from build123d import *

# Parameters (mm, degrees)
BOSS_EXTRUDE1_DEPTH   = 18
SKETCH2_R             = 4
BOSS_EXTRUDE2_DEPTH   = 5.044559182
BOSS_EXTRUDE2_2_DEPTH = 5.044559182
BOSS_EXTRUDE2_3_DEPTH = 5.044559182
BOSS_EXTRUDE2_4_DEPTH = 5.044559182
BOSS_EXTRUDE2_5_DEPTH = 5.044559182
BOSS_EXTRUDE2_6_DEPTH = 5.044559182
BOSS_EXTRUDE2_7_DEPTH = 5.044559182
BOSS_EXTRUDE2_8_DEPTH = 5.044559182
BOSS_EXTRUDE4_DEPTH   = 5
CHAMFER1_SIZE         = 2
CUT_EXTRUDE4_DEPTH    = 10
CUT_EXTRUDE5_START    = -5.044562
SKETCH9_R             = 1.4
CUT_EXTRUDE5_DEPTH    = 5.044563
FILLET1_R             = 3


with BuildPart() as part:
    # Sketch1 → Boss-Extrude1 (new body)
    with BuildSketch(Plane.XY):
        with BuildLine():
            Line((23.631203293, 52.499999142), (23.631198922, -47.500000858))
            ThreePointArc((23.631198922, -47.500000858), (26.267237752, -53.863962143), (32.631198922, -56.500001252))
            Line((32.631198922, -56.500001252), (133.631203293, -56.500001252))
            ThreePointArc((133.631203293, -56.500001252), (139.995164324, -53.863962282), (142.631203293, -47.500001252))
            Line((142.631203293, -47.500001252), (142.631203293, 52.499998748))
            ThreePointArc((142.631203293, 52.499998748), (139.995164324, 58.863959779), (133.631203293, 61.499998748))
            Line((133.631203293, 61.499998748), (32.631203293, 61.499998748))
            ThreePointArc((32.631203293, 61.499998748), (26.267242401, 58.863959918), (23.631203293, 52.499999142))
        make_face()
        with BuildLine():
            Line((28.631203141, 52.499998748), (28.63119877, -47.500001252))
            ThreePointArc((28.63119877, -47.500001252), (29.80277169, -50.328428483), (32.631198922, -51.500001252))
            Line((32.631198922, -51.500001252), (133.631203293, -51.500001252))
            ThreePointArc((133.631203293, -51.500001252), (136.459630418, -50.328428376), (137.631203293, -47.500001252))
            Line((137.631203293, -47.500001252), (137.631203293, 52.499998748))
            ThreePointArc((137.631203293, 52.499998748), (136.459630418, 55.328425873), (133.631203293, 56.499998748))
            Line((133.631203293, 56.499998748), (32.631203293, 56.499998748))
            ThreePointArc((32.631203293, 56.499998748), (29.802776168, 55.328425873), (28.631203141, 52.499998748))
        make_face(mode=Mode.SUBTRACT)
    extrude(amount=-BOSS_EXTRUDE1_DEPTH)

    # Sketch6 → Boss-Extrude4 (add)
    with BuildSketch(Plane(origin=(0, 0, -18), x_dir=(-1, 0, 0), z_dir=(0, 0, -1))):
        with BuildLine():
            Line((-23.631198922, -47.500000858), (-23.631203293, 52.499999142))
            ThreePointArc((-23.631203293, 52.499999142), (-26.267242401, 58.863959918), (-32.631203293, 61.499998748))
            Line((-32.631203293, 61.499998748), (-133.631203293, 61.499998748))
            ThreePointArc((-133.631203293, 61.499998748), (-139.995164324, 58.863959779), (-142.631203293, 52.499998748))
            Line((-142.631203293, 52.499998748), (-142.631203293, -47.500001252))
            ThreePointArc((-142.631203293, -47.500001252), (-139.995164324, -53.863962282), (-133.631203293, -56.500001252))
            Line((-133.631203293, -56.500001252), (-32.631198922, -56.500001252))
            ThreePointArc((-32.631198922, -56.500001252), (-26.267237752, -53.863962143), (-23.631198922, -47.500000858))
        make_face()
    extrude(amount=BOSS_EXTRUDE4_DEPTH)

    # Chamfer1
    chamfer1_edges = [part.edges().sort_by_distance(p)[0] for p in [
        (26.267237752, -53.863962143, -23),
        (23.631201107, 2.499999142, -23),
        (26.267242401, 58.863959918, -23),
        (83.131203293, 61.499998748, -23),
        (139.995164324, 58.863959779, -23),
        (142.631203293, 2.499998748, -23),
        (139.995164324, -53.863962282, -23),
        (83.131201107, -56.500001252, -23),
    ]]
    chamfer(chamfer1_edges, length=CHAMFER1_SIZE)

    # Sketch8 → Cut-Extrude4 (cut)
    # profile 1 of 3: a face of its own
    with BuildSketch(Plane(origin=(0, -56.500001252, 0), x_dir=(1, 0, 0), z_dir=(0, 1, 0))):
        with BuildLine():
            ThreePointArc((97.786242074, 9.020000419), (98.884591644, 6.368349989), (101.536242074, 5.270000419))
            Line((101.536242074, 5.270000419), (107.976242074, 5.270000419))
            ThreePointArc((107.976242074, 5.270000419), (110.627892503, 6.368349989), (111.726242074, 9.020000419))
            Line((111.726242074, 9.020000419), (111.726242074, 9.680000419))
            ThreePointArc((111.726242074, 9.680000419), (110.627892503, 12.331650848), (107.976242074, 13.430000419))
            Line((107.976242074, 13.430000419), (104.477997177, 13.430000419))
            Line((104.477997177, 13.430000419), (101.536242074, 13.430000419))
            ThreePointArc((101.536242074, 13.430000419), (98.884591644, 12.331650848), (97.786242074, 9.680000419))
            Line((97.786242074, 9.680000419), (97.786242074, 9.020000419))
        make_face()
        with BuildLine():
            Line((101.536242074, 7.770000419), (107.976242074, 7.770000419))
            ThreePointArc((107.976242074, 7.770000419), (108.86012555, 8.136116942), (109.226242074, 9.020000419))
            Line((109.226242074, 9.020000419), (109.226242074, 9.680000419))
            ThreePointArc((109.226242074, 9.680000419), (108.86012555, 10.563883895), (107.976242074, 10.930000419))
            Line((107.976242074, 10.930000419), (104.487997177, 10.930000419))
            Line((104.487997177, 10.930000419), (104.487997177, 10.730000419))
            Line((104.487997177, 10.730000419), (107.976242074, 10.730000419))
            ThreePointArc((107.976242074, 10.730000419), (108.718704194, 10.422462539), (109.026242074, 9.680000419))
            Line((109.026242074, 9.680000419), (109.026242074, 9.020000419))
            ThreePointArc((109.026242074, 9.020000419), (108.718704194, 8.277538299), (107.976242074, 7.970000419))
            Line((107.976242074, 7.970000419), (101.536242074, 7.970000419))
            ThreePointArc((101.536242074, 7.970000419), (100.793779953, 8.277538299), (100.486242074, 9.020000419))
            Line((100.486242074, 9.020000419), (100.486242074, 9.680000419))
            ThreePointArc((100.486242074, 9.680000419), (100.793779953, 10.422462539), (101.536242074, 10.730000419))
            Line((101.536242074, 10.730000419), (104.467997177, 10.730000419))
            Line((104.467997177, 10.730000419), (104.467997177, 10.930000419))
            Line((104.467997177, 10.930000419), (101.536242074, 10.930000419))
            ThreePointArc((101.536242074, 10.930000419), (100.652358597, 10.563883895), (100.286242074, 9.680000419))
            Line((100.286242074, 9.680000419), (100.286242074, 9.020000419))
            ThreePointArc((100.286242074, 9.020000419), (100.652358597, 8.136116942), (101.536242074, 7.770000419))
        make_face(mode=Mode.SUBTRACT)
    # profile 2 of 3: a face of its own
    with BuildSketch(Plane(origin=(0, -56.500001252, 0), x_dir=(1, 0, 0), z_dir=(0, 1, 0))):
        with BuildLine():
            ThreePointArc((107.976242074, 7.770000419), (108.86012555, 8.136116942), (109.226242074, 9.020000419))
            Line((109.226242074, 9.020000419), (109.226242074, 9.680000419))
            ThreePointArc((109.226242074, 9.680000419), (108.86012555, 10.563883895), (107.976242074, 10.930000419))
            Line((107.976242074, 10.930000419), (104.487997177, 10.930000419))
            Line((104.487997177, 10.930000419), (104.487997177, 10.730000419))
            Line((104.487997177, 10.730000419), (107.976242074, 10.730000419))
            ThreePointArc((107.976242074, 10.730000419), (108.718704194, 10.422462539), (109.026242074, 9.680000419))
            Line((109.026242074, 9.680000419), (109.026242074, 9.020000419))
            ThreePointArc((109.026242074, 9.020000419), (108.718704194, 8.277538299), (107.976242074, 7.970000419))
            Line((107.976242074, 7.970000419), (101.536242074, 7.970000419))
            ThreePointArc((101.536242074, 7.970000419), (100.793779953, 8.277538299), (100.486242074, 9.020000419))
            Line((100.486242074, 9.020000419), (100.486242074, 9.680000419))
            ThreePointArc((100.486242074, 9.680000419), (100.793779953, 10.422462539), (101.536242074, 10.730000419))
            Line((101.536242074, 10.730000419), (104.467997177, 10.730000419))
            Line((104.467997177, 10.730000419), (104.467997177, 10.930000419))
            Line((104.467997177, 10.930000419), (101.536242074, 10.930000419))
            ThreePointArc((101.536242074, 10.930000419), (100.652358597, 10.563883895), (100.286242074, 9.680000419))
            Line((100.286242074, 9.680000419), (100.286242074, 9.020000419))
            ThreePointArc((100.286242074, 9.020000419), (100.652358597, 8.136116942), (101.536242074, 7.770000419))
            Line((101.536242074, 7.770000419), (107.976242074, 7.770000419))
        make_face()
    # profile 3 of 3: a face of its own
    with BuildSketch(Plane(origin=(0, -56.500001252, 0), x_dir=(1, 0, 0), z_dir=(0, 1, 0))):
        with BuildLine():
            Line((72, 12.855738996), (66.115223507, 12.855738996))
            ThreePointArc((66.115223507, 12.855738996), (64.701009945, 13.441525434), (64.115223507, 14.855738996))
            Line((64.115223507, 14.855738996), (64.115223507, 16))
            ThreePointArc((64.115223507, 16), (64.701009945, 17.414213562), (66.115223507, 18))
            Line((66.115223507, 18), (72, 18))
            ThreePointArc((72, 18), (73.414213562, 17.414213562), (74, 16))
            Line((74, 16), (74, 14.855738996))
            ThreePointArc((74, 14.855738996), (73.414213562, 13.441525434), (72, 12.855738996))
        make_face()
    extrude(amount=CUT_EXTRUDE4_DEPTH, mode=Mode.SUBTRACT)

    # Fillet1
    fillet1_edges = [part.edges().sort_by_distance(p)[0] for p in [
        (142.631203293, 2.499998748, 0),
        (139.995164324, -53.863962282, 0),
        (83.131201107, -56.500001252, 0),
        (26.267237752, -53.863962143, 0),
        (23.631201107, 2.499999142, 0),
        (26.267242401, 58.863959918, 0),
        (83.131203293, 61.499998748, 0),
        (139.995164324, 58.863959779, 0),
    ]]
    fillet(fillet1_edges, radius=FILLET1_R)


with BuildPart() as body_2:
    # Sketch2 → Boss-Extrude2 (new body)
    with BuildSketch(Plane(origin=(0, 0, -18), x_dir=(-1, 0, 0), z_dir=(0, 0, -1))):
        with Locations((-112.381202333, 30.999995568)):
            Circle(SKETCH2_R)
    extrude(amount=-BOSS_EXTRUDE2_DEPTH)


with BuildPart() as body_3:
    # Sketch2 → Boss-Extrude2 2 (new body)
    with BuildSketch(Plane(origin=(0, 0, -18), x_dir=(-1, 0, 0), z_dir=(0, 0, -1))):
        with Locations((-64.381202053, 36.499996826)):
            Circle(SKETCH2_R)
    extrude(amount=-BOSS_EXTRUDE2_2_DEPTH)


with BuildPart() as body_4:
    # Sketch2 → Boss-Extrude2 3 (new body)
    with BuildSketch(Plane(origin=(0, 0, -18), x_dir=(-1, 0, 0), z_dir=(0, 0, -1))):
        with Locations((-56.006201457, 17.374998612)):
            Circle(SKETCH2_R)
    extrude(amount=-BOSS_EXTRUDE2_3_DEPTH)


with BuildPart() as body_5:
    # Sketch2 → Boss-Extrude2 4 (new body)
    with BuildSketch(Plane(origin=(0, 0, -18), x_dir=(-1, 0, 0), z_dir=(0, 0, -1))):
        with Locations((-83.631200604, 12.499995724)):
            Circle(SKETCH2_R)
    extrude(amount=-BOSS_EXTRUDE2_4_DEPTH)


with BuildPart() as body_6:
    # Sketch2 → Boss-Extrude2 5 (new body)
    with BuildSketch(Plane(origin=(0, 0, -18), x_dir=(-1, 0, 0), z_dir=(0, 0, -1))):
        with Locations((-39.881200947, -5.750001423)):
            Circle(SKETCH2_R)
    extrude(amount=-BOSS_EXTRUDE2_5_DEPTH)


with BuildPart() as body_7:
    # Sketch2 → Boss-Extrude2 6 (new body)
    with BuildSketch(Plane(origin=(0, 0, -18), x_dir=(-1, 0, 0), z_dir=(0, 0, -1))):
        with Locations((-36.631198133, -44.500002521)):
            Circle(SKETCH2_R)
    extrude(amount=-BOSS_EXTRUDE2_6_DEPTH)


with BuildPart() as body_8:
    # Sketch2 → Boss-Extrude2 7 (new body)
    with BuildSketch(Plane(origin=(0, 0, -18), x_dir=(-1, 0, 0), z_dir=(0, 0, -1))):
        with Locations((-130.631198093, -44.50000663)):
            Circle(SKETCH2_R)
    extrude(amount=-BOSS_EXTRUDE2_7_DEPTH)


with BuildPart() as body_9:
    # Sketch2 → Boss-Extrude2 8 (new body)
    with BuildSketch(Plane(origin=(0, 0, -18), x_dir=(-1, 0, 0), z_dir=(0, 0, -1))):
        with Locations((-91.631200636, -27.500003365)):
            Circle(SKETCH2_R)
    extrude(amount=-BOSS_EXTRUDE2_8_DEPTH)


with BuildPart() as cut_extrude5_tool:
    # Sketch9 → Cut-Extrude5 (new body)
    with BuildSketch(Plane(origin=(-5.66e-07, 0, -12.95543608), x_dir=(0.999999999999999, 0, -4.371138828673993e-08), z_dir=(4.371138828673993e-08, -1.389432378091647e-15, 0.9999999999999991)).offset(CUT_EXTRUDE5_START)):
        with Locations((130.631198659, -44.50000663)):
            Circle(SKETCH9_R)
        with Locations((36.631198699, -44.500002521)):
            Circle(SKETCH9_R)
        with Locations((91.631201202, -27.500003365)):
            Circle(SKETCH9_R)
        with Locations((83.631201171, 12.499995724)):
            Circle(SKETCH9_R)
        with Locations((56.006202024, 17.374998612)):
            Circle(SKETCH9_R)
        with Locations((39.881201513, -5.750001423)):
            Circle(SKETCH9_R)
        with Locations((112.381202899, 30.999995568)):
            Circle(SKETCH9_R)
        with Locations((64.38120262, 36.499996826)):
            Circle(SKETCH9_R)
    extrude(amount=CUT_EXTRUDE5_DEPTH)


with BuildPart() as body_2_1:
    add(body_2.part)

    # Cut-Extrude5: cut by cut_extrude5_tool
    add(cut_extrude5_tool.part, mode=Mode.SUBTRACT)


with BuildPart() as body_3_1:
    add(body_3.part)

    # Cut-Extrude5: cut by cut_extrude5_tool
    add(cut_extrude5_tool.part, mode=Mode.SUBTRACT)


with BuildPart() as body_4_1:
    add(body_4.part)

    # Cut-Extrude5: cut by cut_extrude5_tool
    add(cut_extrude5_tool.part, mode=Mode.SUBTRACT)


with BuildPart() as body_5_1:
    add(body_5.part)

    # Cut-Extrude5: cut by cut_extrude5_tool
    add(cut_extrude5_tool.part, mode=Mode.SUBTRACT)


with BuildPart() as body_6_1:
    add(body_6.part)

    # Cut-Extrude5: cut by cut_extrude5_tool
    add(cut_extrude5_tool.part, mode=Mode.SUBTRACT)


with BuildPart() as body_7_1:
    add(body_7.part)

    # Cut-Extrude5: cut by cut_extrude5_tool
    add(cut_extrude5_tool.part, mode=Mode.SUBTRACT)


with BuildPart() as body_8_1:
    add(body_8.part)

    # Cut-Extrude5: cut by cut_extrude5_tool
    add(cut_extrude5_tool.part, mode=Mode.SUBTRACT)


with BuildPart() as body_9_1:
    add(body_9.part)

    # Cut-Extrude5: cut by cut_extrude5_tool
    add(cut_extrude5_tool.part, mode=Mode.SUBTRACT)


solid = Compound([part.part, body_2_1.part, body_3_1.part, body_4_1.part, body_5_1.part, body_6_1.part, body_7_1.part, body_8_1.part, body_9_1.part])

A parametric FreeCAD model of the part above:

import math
import FreeCAD as App
import Part
import Sketcher
from FreeCAD import Vector


def edges_at(feature, points):
    """Names of the edges that pass closest to the given points."""
    edges = feature.Shape.Edges
    near = lambda p: min(range(len(edges)), key=lambda i: edges[i].distToShape(Part.Vertex(*p))[0])
    return sorted({f"Edge{near(p) + 1}" for p in points})

doc = App.newDocument("Part")
body = doc.addObject("PartDesign::Body", "Body")

# Sketch on XY plane
sketch1 = body.newObject("Sketcher::SketchObject", "Sketch")
sketch1.AttachmentSupport = (doc.getObject("XY_Plane"), [""])
sketch1.MapMode = "FlatFace"
sketch1.addGeometry([
    Part.LineSegment(Vector(23.6, 52.5, 0), Vector(23.6, -47.5, 0)),  # 0
    Part.ArcOfCircle(Part.Circle(Vector(32.6, -47.5, 0), Vector(0, 0, 1), 9), math.radians(180), math.radians(270)),  # 1
    Part.LineSegment(Vector(32.6, -56.5, 0), Vector(133.6, -56.5, 0)),  # 2
    Part.ArcOfCircle(Part.Circle(Vector(133.6, -47.5, 0), Vector(0, 0, 1), 9), math.radians(-90), math.radians(0)),  # 3
    Part.LineSegment(Vector(142.6, -47.5, 0), Vector(142.6, 52.5, 0)),  # 4
    Part.ArcOfCircle(Part.Circle(Vector(133.6, 52.5, 0), Vector(0, 0, 1), 9), math.radians(0), math.radians(90)),  # 5
    Part.LineSegment(Vector(133.6, 61.5, 0), Vector(32.6, 61.5, 0)),  # 6
    Part.ArcOfCircle(Part.Circle(Vector(32.6, 52.5, 0), Vector(0, 0, 1), 9), math.radians(90), math.radians(180)),  # 7
    Part.LineSegment(Vector(28.6, -47.5, 0), Vector(28.6, 52.5, 0)),  # 8
    Part.ArcOfCircle(Part.Circle(Vector(32.6, 52.5, 0), Vector(0, 0, 1), 4), math.radians(90), math.radians(180)),  # 9
    Part.LineSegment(Vector(32.6, 56.5, 0), Vector(133.6, 56.5, 0)),  # 10
    Part.ArcOfCircle(Part.Circle(Vector(133.6, 52.5, 0), Vector(0, 0, 1), 4), math.radians(0), math.radians(90)),  # 11
    Part.LineSegment(Vector(137.6, 52.5, 0), Vector(137.6, -47.5, 0)),  # 12
    Part.ArcOfCircle(Part.Circle(Vector(133.6, -47.5, 0), Vector(0, 0, 1), 4), math.radians(-90), math.radians(0)),  # 13
    Part.LineSegment(Vector(133.6, -51.5, 0), Vector(32.6, -51.5, 0)),  # 14
    Part.ArcOfCircle(Part.Circle(Vector(32.6, -47.5, 0), Vector(0, 0, 1), 4), math.radians(180), math.radians(270)),  # 15
], False)
sketch1.addConstraint([
    Sketcher.Constraint("Tangent", 0, 2, 1, 1),
    Sketcher.Constraint("Tangent", 1, 2, 2, 1),
    Sketcher.Constraint("Tangent", 2, 2, 3, 1),
    Sketcher.Constraint("Tangent", 3, 2, 4, 1),
    Sketcher.Constraint("Tangent", 4, 2, 5, 1),
    Sketcher.Constraint("Tangent", 5, 2, 6, 1),
    Sketcher.Constraint("Tangent", 6, 2, 7, 1),
    Sketcher.Constraint("Tangent", 7, 2, 0, 1),
    Sketcher.Constraint("Tangent", 8, 2, 9, 2),
    Sketcher.Constraint("Tangent", 9, 1, 10, 1),
    Sketcher.Constraint("Tangent", 10, 2, 11, 2),
    Sketcher.Constraint("Tangent", 11, 1, 12, 1),
    Sketcher.Constraint("Tangent", 12, 2, 13, 2),
    Sketcher.Constraint("Tangent", 13, 1, 14, 1),
    Sketcher.Constraint("Tangent", 14, 2, 15, 2),
    Sketcher.Constraint("Tangent", 15, 1, 8, 1),
    Sketcher.Constraint("Horizontal", 2),
    Sketcher.Constraint("Vertical", 4),
    Sketcher.Constraint("Horizontal", 6),
    Sketcher.Constraint("Horizontal", 10),
    Sketcher.Constraint("Vertical", 12),
    Sketcher.Constraint("Horizontal", 14),
    Sketcher.Constraint("Coincident", 9, 3, 7, 3),
    Sketcher.Constraint("Coincident", 11, 3, 5, 3),
    Sketcher.Constraint("Coincident", 13, 3, 3, 3),
    Sketcher.Constraint("Coincident", 15, 3, 1, 3),
    Sketcher.Constraint("Equal", 1, 3),
    Sketcher.Constraint("Equal", 3, 5),
    Sketcher.Constraint("Equal", 5, 7),
    Sketcher.Constraint("Symmetric", 1, 2, 9, 1, -1),
    Sketcher.Constraint("Radius", 1, 9.0),
    Sketcher.Constraint("Radius", 9, 4.0),
    Sketcher.Constraint("DistanceX", 6, 2, 6, 1, 101.0),
    Sketcher.Constraint("DistanceY", 4, 1, 4, 2, 100.0),
    Sketcher.Constraint("DistanceX", -1, 1, 1, 3, 32.631199),
])
pad1 = body.newObject("PartDesign::Pad", "Pad")
pad1.Profile = sketch1
pad1.Length = 18
pad1.Reversed = True

# Sketch on XY plane
sketch2 = body.newObject("Sketcher::SketchObject", "Sketch001")
sketch2.AttachmentSupport = (doc.getObject("XY_Plane"), [""])
sketch2.MapMode = "FlatFace"
sketch2.AttachmentOffset = App.Placement(Vector(0, 0, -18), App.Rotation())
sketch2.addGeometry([
    Part.LineSegment(Vector(24, -48, 0), Vector(24, 52, 0)),  # 0
    Part.ArcOfCircle(Part.Circle(Vector(33, 52, 0), Vector(0, 0, 1), 9), math.radians(90), math.radians(180)),  # 1
    Part.LineSegment(Vector(33, 61, 0), Vector(134, 61, 0)),  # 2
    Part.ArcOfCircle(Part.Circle(Vector(134, 52, 0), Vector(0, 0, 1), 9), math.radians(0), math.radians(90)),  # 3
    Part.LineSegment(Vector(143, 52, 0), Vector(143, -48, 0)),  # 4
    Part.ArcOfCircle(Part.Circle(Vector(134, -48, 0), Vector(0, 0, 1), 9), math.radians(-90), math.radians(0)),  # 5
    Part.LineSegment(Vector(134, -57, 0), Vector(33, -57, 0)),  # 6
    Part.ArcOfCircle(Part.Circle(Vector(33, -48, 0), Vector(0, 0, 1), 9), math.radians(180), math.radians(270)),  # 7
], False)
sketch2.addConstraint([
    Sketcher.Constraint("Tangent", 0, 2, 1, 2),
    Sketcher.Constraint("Tangent", 1, 1, 2, 1),
    Sketcher.Constraint("Tangent", 2, 2, 3, 2),
    Sketcher.Constraint("Tangent", 3, 1, 4, 1),
    Sketcher.Constraint("Tangent", 4, 2, 5, 2),
    Sketcher.Constraint("Tangent", 5, 1, 6, 1),
    Sketcher.Constraint("Tangent", 6, 2, 7, 2),
    Sketcher.Constraint("Tangent", 7, 1, 0, 1),
    Sketcher.Constraint("Horizontal", 2),
    Sketcher.Constraint("Vertical", 4),
    Sketcher.Constraint("Horizontal", 6),
    Sketcher.Constraint("Equal", 1, 3),
    Sketcher.Constraint("Equal", 3, 5),
    Sketcher.Constraint("Equal", 5, 7),
    Sketcher.Constraint("Horizontal", 3, 3, 0, 2),
    Sketcher.Constraint("Radius", 1, 9.0),
    Sketcher.Constraint("DistanceX", 2, 1, 2, 2, 101.0),
    Sketcher.Constraint("DistanceY", 4, 2, 4, 1, 100.0),
    Sketcher.Constraint("DistanceY", -1, 1, 1, 3, 52.499999),
    Sketcher.Constraint("DistanceX", -1, 1, 7, 3, 32.631199),
])
pad2 = body.newObject("PartDesign::Pad", "Pad001")
pad2.Profile = sketch2
pad2.Length = 5
pad2.Reversed = True
doc.recompute()

chamfer = body.newObject("PartDesign::Chamfer", "Chamfer")
chamfer.Base = (pad2, edges_at(pad2, [
    (26.267, -53.864, -23),
    (23.631, 2.5, -23),
    (26.267, 58.864, -23),
    (83.131, 61.5, -23),
    (139.995, 58.864, -23),
    (142.631, 2.5, -23),
    (139.995, -53.864, -23),
    (83.131, -56.5, -23),
]))
chamfer.Size = 2

# Sketch on XZ plane
sketch3 = body.newObject("Sketcher::SketchObject", "Sketch002")
sketch3.AttachmentSupport = (doc.getObject("XZ_Plane"), [""])
sketch3.MapMode = "FlatFace"
sketch3.AttachmentOffset = App.Placement(Vector(0, 0, 56.500001), App.Rotation())
sketch3.addGeometry([
    Part.ArcOfCircle(Part.Circle(Vector(101.5, -9, 0), Vector(0, 0, 1), 3.7), math.radians(90), math.radians(180)),  # 0
    Part.LineSegment(Vector(101.5, -5.3, 0), Vector(108, -5.3, 0)),  # 1
    Part.ArcOfCircle(Part.Circle(Vector(108, -9, 0), Vector(0, 0, 1), 3.8), math.radians(0), math.radians(90)),  # 2
    Part.LineSegment(Vector(111.7, -9, 0), Vector(111.7, -9.7, 0)),  # 3
    Part.ArcOfCircle(Part.Circle(Vector(108, -9.7, 0), Vector(0, 0, 1), 3.8), math.radians(-90), math.radians(0)),  # 4
    Part.LineSegment(Vector(108, -13.4, 0), Vector(101.5, -13.4, 0)),  # 5
    Part.ArcOfCircle(Part.Circle(Vector(101.5, -9.7, 0), Vector(0, 0, 1), 3.8), math.radians(180), math.radians(270)),  # 6
    Part.LineSegment(Vector(97.8, -9.7, 0), Vector(97.8, -9, 0)),  # 7
    Part.LineSegment(Vector(66.1, -12.9, 0), Vector(72, -12.9, 0)),  # 8
    Part.ArcOfCircle(Part.Circle(Vector(72, -14.9, 0), Vector(0, 0, 1), 2), math.radians(0), math.radians(90)),  # 9
    Part.LineSegment(Vector(74, -14.9, 0), Vector(74, -16, 0)),  # 10
    Part.ArcOfCircle(Part.Circle(Vector(72, -16, 0), Vector(0, 0, 1), 2), math.radians(-90), math.radians(0)),  # 11
    Part.LineSegment(Vector(72, -18, 0), Vector(66.1, -18, 0)),  # 12
    Part.ArcOfCircle(Part.Circle(Vector(66.1, -16, 0), Vector(0, 0, 1), 2), math.radians(-180), math.radians(-90)),  # 13
    Part.LineSegment(Vector(64.1, -16, 0), Vector(64.1, -14.9, 0)),  # 14
    Part.ArcOfCircle(Part.Circle(Vector(66.1, -14.9, 0), Vector(0, 0, 1), 2), math.radians(90), math.radians(180)),  # 15
], False)
sketch3.addConstraint([
    Sketcher.Constraint("Tangent", 0, 1, 1, 1),
    Sketcher.Constraint("Tangent", 1, 2, 2, 2),
    Sketcher.Constraint("Tangent", 2, 1, 3, 1),
    Sketcher.Constraint("Tangent", 3, 2, 4, 2),
    Sketcher.Constraint("Tangent", 4, 1, 5, 1),
    Sketcher.Constraint("Tangent", 5, 2, 6, 2),
    Sketcher.Constraint("Tangent", 6, 1, 7, 1),
    Sketcher.Constraint("Tangent", 7, 2, 0, 2),
    Sketcher.Constraint("Tangent", 8, 2, 9, 2),
    Sketcher.Constraint("Tangent", 9, 1, 10, 1),
    Sketcher.Constraint("Tangent", 10, 2, 11, 2),
    Sketcher.Constraint("Tangent", 11, 1, 12, 1),
    Sketcher.Constraint("Tangent", 12, 2, 13, 2),
    Sketcher.Constraint("Tangent", 13, 1, 14, 1),
    Sketcher.Constraint("Tangent", 14, 2, 15, 2),
    Sketcher.Constraint("Tangent", 15, 1, 8, 1),
    Sketcher.Constraint("Horizontal", 1),
    Sketcher.Constraint("Vertical", 3),
    Sketcher.Constraint("Horizontal", 5),
    Sketcher.Constraint("Vertical", 7),
    Sketcher.Constraint("Horizontal", 8),
    Sketcher.Constraint("Vertical", 10),
    Sketcher.Constraint("Horizontal", 12),
    Sketcher.Constraint("Vertical", 14),
    Sketcher.Constraint("Equal", 0, 2),
    Sketcher.Constraint("Equal", 2, 4),
    Sketcher.Constraint("Equal", 4, 6),
    Sketcher.Constraint("Equal", 9, 11),
    Sketcher.Constraint("Equal", 11, 13),
    Sketcher.Constraint("Equal", 13, 15),
    Sketcher.Constraint("Radius", 9, 2.0),
    Sketcher.Constraint("Radius", 0, 3.75),
    Sketcher.Constraint("DistanceX", -1, 1, 9, 3, 72.0),
    Sketcher.Constraint("DistanceY", 11, 3, -1, 1, 16.0),
    Sketcher.Constraint("DistanceX", 1, 1, 1, 2, 6.44),
    Sketcher.Constraint("DistanceY", 3, 2, 3, 1, 0.66),
    Sketcher.Constraint("DistanceY", 0, 3, -1, 1, 9.02),
    Sketcher.Constraint("DistanceY", 10, 2, 10, 1, 1.144261),
    Sketcher.Constraint("DistanceX", 8, 1, 8, 2, 5.884776),
    Sketcher.Constraint("DistanceX", 13, 3, 6, 3, 35.421019),
])
pocket1 = body.newObject("PartDesign::Pocket", "Pocket")
pocket1.Profile = sketch3
pocket1.Length = 10
doc.recompute()

fillet = body.newObject("PartDesign::Fillet", "Fillet")
fillet.Base = (pocket1, edges_at(pocket1, [
    (142.631, 2.5, 0),
    (139.995, -53.864, 0),
    (83.131, -56.5, 0),
    (26.267, -53.864, 0),
    (23.631, 2.5, 0),
    (26.267, 58.864, 0),
    (83.131, 61.5, 0),
    (139.995, 58.864, 0),
]))
fillet.Radius = 3
body2 = doc.addObject("PartDesign::Body", "Body001")

# Sketch on XY plane
sketch4 = body2.newObject("Sketcher::SketchObject", "Sketch003")
sketch4.AttachmentSupport = (doc.getObject("XY_Plane001"), [""])
sketch4.MapMode = "FlatFace"
sketch4.AttachmentOffset = App.Placement(Vector(0, 0, -18), App.Rotation())
sketch4.addGeometry(Part.Circle(Vector(112.4, 31, 0), Vector(0, 0, 1), 4), False)
sketch4.addConstraint([
    Sketcher.Constraint("Diameter", 0, 8.0),
    Sketcher.Constraint("DistanceX", -1, 1, 0, 3, 112.381202),
    Sketcher.Constraint("DistanceY", -1, 1, 0, 3, 30.999996),
])
pad3 = body2.newObject("PartDesign::Pad", "Pad002")
pad3.Profile = sketch4
pad3.Length = 5.044559
body3 = doc.addObject("PartDesign::Body", "Body002")

# Sketch on XY plane
sketch5 = body3.newObject("Sketcher::SketchObject", "Sketch004")
sketch5.AttachmentSupport = (doc.getObject("XY_Plane002"), [""])
sketch5.MapMode = "FlatFace"
sketch5.AttachmentOffset = App.Placement(Vector(0, 0, -18), App.Rotation())
sketch5.addGeometry(Part.Circle(Vector(64.4, 36.5, 0), Vector(0, 0, 1), 4), False)
sketch5.addConstraint([
    Sketcher.Constraint("Diameter", 0, 8.0),
    Sketcher.Constraint("DistanceX", -1, 1, 0, 3, 64.381202),
    Sketcher.Constraint("DistanceY", -1, 1, 0, 3, 36.499997),
])
pad4 = body3.newObject("PartDesign::Pad", "Pad003")
pad4.Profile = sketch5
pad4.Length = 5.044559
body4 = doc.addObject("PartDesign::Body", "Body003")

# Sketch on XY plane
sketch6 = body4.newObject("Sketcher::SketchObject", "Sketch005")
sketch6.AttachmentSupport = (doc.getObject("XY_Plane003"), [""])
sketch6.MapMode = "FlatFace"
sketch6.AttachmentOffset = App.Placement(Vector(0, 0, -18), App.Rotation())
sketch6.addGeometry(Part.Circle(Vector(56, 17.4, 0), Vector(0, 0, 1), 4), False)
sketch6.addConstraint([
    Sketcher.Constraint("Diameter", 0, 8.0),
    Sketcher.Constraint("DistanceY", -1, 1, 0, 3, 17.374999),
    Sketcher.Constraint("DistanceX", -1, 1, 0, 3, 56.006201),
])
pad5 = body4.newObject("PartDesign::Pad", "Pad004")
pad5.Profile = sketch6
pad5.Length = 5.044559
body5 = doc.addObject("PartDesign::Body", "Body004")

# Sketch on XY plane
sketch7 = body5.newObject("Sketcher::SketchObject", "Sketch006")
sketch7.AttachmentSupport = (doc.getObject("XY_Plane004"), [""])
sketch7.MapMode = "FlatFace"
sketch7.AttachmentOffset = App.Placement(Vector(0, 0, -18), App.Rotation())
sketch7.addGeometry(Part.Circle(Vector(83.6, 12.5, 0), Vector(0, 0, 1), 4), False)
sketch7.addConstraint([
    Sketcher.Constraint("Diameter", 0, 8.0),
    Sketcher.Constraint("DistanceX", -1, 1, 0, 3, 83.631201),
    Sketcher.Constraint("DistanceY", -1, 1, 0, 3, 12.499996),
])
pad6 = body5.newObject("PartDesign::Pad", "Pad005")
pad6.Profile = sketch7
pad6.Length = 5.044559
body6 = doc.addObject("PartDesign::Body", "Body005")

# Sketch on XY plane
sketch8 = body6.newObject("Sketcher::SketchObject", "Sketch007")
sketch8.AttachmentSupport = (doc.getObject("XY_Plane005"), [""])
sketch8.MapMode = "FlatFace"
sketch8.AttachmentOffset = App.Placement(Vector(0, 0, -18), App.Rotation())
sketch8.addGeometry(Part.Circle(Vector(39.9, -5.8, 0), Vector(0, 0, 1), 4), False)
sketch8.addConstraint([
    Sketcher.Constraint("Diameter", 0, 8.0),
    Sketcher.Constraint("DistanceY", 0, 3, -1, 1, 5.750001),
    Sketcher.Constraint("DistanceX", -1, 1, 0, 3, 39.881201),
])
pad7 = body6.newObject("PartDesign::Pad", "Pad006")
pad7.Profile = sketch8
pad7.Length = 5.044559
body7 = doc.addObject("PartDesign::Body", "Body006")

# Sketch on XY plane
sketch9 = body7.newObject("Sketcher::SketchObject", "Sketch008")
sketch9.AttachmentSupport = (doc.getObject("XY_Plane006"), [""])
sketch9.MapMode = "FlatFace"
sketch9.AttachmentOffset = App.Placement(Vector(0, 0, -18), App.Rotation())
sketch9.addGeometry(Part.Circle(Vector(36.6, -44.5, 0), Vector(0, 0, 1), 4), False)
sketch9.addConstraint([
    Sketcher.Constraint("Diameter", 0, 8.0),
    Sketcher.Constraint("DistanceX", -1, 1, 0, 3, 36.631198),
    Sketcher.Constraint("DistanceY", 0, 3, -1, 1, 44.500003),
])
pad8 = body7.newObject("PartDesign::Pad", "Pad007")
pad8.Profile = sketch9
pad8.Length = 5.044559
body8 = doc.addObject("PartDesign::Body", "Body007")

# Sketch on XY plane
sketch10 = body8.newObject("Sketcher::SketchObject", "Sketch009")
sketch10.AttachmentSupport = (doc.getObject("XY_Plane007"), [""])
sketch10.MapMode = "FlatFace"
sketch10.AttachmentOffset = App.Placement(Vector(0, 0, -18), App.Rotation())
sketch10.addGeometry(Part.Circle(Vector(130.6, -44.5, 0), Vector(0, 0, 1), 4), False)
sketch10.addConstraint([
    Sketcher.Constraint("Diameter", 0, 8.0),
    Sketcher.Constraint("DistanceX", -1, 1, 0, 3, 130.631198),
    Sketcher.Constraint("DistanceY", 0, 3, -1, 1, 44.500007),
])
pad9 = body8.newObject("PartDesign::Pad", "Pad008")
pad9.Profile = sketch10
pad9.Length = 5.044559
body9 = doc.addObject("PartDesign::Body", "Body008")

# Sketch on XY plane
sketch11 = body9.newObject("Sketcher::SketchObject", "Sketch010")
sketch11.AttachmentSupport = (doc.getObject("XY_Plane008"), [""])
sketch11.MapMode = "FlatFace"
sketch11.AttachmentOffset = App.Placement(Vector(0, 0, -18), App.Rotation())
sketch11.addGeometry(Part.Circle(Vector(91.6, -27.5, 0), Vector(0, 0, 1), 4), False)
sketch11.addConstraint([
    Sketcher.Constraint("Diameter", 0, 8.0),
    Sketcher.Constraint("DistanceX", -1, 1, 0, 3, 91.631201),
    Sketcher.Constraint("DistanceY", 0, 3, -1, 1, 27.500003),
])
pad10 = body9.newObject("PartDesign::Pad", "Pad009")
pad10.Profile = sketch11
pad10.Length = 5.044559
body10 = doc.addObject("PartDesign::Body", "Body009")
body10.AllowCompound = True

# Sketch on XY plane
sketch12 = body10.newObject("Sketcher::SketchObject", "Sketch011")
sketch12.AttachmentSupport = (doc.getObject("XY_Plane009"), [""])
sketch12.MapMode = "FlatFace"
sketch12.AttachmentOffset = App.Placement(Vector(0, 0, -17.999998), App.Rotation())
sketch12.addGeometry([
    Part.Circle(Vector(130.6, -44.5, 0), Vector(0, 0, 1), 1.4),  # 0
    Part.Circle(Vector(36.6, -44.5, 0), Vector(0, 0, 1), 1.4),  # 1
    Part.Circle(Vector(91.6, -27.5, 0), Vector(0, 0, 1), 1.4),  # 2
    Part.Circle(Vector(83.6, 12.5, 0), Vector(0, 0, 1), 1.4),  # 3
    Part.Circle(Vector(56, 17.4, 0), Vector(0, 0, 1), 1.4),  # 4
    Part.Circle(Vector(39.9, -5.8, 0), Vector(0, 0, 1), 1.4),  # 5
    Part.Circle(Vector(112.4, 31, 0), Vector(0, 0, 1), 1.4),  # 6
    Part.Circle(Vector(64.4, 36.5, 0), Vector(0, 0, 1), 1.4),  # 7
], False)
sketch12.addConstraint([
    Sketcher.Constraint("Equal", 0, 1),
    Sketcher.Constraint("Equal", 1, 2),
    Sketcher.Constraint("Equal", 2, 3),
    Sketcher.Constraint("Equal", 3, 4),
    Sketcher.Constraint("Equal", 4, 5),
    Sketcher.Constraint("Equal", 5, 6),
    Sketcher.Constraint("Equal", 6, 7),
    Sketcher.Constraint("Diameter", 0, 2.8),
    Sketcher.Constraint("DistanceX", 1, 3, 0, 3, 94.0),
    Sketcher.Constraint("DistanceY", 1, 3, 2, 3, 16.999999),
    Sketcher.Constraint("DistanceX", 3, 3, 2, 3, 8.0),
    Sketcher.Constraint("DistanceY", 2, 3, 3, 3, 39.999999),
    Sketcher.Constraint("DistanceY", 3, 3, 7, 3, 24.000001),
    Sketcher.Constraint("DistanceX", 7, 3, 6, 3, 48.0),
    Sketcher.Constraint("DistanceY", 3, 3, 6, 3, 18.5),
    Sketcher.Constraint("DistanceX", 5, 3, 6, 3, 72.500001),
    Sketcher.Constraint("DistanceY", 5, 3, -1, 1, 5.750001),
    Sketcher.Constraint("DistanceY", 1, 3, 5, 3, 38.750001),
    Sketcher.Constraint("DistanceX", 5, 3, 3, 3, 43.75),
    Sketcher.Constraint("DistanceY", -1, 1, 4, 3, 17.374999),
    Sketcher.Constraint("DistanceX", 4, 3, 3, 3, 27.624999),
    Sketcher.Constraint("DistanceX", -1, 1, 2, 3, 91.6312),
    Sketcher.Constraint("DistanceX", -1, 1, 0, 3, 130.631198),
    Sketcher.Constraint("DistanceY", 0, 3, -1, 1, 44.500007),
])
pad11 = body10.newObject("PartDesign::Pad", "Pad010")
pad11.Profile = sketch12
pad11.Length = 5.044563
doc.recompute()

body11 = doc.addObject("PartDesign::Body", "Body010")
body11.BaseFeature = body10
boolean = body2.newObject("PartDesign::Boolean", "Boolean")
boolean.Type = "Cut"
boolean.addObjects([body11])
doc.recompute()

body12 = doc.addObject("PartDesign::Body", "Body011")
body12.BaseFeature = body10
boolean2 = body3.newObject("PartDesign::Boolean", "Boolean001")
boolean2.Type = "Cut"
boolean2.addObjects([body12])
doc.recompute()

body13 = doc.addObject("PartDesign::Body", "Body012")
body13.BaseFeature = body10
boolean3 = body4.newObject("PartDesign::Boolean", "Boolean002")
boolean3.Type = "Cut"
boolean3.addObjects([body13])
doc.recompute()

body14 = doc.addObject("PartDesign::Body", "Body013")
body14.BaseFeature = body10
boolean4 = body5.newObject("PartDesign::Boolean", "Boolean003")
boolean4.Type = "Cut"
boolean4.addObjects([body14])
doc.recompute()

body15 = doc.addObject("PartDesign::Body", "Body014")
body15.BaseFeature = body10
boolean5 = body6.newObject("PartDesign::Boolean", "Boolean004")
boolean5.Type = "Cut"
boolean5.addObjects([body15])
doc.recompute()

body16 = doc.addObject("PartDesign::Body", "Body015")
body16.BaseFeature = body10
boolean6 = body7.newObject("PartDesign::Boolean", "Boolean005")
boolean6.Type = "Cut"
boolean6.addObjects([body16])
doc.recompute()

body17 = doc.addObject("PartDesign::Body", "Body016")
body17.BaseFeature = body10
boolean7 = body8.newObject("PartDesign::Boolean", "Boolean006")
boolean7.Type = "Cut"
boolean7.addObjects([body17])
doc.recompute()

boolean8 = body9.newObject("PartDesign::Boolean", "Boolean007")
boolean8.Type = "Cut"
boolean8.addObjects([body10])

doc.recompute()
